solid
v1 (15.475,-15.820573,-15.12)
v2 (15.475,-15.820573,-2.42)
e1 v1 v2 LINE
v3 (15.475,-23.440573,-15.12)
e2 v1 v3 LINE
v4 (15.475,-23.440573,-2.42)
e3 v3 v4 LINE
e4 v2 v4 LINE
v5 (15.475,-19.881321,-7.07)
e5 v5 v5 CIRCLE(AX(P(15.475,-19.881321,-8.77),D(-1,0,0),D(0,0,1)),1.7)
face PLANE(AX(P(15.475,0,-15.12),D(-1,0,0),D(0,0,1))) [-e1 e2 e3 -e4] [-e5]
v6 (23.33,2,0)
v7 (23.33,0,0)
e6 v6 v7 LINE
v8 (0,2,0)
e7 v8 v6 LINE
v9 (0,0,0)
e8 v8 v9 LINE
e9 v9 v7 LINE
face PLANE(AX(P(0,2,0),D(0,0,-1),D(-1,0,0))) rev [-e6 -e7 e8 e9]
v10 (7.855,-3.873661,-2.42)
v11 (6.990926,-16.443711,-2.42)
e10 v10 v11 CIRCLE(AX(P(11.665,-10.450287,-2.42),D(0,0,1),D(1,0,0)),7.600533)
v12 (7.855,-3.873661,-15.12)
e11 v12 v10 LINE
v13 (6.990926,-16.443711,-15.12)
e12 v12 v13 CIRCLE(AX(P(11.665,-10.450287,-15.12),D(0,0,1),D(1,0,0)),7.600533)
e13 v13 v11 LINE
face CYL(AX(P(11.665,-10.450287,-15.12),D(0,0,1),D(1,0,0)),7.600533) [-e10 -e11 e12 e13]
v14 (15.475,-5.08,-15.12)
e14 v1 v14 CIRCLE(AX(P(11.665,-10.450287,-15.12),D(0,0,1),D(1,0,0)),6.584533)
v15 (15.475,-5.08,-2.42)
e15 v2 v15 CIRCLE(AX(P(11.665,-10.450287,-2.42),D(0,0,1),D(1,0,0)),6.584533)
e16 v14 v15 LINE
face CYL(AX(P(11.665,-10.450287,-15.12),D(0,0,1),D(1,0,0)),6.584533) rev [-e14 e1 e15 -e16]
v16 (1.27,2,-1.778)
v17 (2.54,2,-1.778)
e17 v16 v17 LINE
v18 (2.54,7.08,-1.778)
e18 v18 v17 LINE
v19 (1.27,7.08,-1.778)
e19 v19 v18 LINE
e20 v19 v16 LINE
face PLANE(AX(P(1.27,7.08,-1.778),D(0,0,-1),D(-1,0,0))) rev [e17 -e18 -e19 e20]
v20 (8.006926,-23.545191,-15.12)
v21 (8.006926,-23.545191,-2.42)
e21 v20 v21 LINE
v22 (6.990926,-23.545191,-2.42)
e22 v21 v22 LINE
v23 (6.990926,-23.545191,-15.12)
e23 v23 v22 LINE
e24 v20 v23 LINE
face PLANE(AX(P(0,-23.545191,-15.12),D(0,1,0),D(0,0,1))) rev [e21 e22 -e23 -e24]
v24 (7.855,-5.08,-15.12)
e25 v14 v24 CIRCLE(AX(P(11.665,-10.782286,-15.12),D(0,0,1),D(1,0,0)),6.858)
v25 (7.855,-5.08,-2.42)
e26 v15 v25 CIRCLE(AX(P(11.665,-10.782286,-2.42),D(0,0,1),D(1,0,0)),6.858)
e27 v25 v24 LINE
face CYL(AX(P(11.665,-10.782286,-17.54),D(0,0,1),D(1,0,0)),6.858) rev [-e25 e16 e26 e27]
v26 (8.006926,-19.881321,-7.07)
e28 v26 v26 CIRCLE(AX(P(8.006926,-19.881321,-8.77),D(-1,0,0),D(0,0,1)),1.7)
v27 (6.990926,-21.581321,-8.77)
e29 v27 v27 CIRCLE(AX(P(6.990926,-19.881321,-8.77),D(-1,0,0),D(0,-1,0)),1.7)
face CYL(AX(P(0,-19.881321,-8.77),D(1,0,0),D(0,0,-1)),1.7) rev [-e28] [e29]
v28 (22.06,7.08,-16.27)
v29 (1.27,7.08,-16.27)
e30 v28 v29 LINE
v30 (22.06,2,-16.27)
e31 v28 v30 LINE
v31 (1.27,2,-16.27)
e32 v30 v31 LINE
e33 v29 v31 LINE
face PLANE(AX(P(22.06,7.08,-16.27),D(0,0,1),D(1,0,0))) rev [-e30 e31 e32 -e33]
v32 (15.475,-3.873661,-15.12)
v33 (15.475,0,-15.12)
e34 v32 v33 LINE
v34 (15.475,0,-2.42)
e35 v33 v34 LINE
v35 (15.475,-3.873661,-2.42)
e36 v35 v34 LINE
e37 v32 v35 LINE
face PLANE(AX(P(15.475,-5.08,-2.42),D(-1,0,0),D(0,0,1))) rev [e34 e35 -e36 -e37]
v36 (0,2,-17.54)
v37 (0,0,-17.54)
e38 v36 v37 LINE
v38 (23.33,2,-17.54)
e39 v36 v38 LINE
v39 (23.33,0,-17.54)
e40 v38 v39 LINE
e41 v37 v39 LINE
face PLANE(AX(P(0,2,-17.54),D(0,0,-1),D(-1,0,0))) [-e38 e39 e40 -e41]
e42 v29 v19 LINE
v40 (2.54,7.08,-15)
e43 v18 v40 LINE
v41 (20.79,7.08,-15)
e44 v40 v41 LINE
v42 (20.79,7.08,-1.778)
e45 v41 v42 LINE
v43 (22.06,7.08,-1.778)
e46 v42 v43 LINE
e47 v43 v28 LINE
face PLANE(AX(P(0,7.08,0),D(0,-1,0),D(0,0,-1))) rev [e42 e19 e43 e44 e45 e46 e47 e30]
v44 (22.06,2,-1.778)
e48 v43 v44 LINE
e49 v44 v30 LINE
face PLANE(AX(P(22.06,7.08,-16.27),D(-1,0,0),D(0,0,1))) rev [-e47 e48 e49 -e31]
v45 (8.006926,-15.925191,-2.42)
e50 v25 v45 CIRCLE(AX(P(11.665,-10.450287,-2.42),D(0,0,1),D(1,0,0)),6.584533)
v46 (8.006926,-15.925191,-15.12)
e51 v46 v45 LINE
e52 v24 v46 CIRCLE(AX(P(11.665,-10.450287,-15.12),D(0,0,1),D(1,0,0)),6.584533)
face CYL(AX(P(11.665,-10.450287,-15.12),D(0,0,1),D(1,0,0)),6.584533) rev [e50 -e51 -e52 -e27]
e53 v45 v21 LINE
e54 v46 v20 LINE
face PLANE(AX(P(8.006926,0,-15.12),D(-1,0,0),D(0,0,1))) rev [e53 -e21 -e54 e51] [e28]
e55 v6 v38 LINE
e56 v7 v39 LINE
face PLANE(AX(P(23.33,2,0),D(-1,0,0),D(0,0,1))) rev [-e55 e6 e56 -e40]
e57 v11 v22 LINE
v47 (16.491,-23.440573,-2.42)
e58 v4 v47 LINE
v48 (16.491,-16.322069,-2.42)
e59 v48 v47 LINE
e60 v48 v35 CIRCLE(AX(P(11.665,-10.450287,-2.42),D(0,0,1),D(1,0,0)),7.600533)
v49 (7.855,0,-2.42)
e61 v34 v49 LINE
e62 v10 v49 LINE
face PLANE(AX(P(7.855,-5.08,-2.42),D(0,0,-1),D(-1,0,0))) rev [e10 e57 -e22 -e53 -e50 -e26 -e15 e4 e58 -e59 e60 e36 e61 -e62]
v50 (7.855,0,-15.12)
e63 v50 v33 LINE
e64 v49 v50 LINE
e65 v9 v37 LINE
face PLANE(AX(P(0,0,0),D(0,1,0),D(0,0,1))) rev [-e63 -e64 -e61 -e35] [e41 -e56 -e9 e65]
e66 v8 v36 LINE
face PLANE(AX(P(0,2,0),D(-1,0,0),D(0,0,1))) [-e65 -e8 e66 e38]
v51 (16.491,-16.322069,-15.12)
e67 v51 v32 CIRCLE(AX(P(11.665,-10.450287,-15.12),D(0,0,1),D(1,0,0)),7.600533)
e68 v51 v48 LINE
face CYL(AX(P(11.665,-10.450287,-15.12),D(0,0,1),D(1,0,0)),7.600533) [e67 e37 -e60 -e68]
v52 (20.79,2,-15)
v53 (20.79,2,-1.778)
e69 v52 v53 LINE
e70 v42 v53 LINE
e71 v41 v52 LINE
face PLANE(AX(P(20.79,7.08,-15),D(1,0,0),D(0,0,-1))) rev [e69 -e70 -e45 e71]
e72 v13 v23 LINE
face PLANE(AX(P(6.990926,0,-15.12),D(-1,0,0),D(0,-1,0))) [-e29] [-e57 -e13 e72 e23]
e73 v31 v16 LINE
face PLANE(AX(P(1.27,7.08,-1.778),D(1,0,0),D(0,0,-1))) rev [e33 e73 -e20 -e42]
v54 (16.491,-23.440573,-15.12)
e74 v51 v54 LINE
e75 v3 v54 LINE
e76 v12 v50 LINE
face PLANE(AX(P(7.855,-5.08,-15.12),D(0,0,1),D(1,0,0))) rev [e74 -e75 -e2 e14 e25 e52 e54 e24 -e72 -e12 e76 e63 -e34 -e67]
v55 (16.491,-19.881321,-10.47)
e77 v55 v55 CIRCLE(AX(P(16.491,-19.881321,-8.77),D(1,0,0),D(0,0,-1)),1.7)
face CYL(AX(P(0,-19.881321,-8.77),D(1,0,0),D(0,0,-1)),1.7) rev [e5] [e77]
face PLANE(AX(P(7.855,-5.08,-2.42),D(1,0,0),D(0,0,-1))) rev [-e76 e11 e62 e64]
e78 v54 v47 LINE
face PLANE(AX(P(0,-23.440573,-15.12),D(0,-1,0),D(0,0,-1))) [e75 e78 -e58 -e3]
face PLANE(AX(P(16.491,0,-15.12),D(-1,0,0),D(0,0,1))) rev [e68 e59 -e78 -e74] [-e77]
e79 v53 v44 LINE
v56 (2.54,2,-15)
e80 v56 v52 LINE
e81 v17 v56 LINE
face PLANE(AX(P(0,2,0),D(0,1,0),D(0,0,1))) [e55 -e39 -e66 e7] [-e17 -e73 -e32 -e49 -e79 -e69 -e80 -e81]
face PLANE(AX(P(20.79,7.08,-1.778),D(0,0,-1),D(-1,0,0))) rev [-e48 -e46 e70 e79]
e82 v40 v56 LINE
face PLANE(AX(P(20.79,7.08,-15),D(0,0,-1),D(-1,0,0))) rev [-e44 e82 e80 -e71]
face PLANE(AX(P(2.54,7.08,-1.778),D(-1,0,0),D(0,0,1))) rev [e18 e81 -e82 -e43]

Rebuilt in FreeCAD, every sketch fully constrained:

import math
import FreeCAD as App
import Part
import Sketcher
from FreeCAD import Vector
Q = App.Units.Quantity

doc = App.newDocument("Part")
body = doc.addObject("PartDesign::Body", "Body")

# Sketch on XZ plane
sketch1 = doc.addObject("Sketcher::SketchObject", "Sketch")
body.addObject(sketch1)
sketch1.AttachmentSupport = (doc.XZ_Plane, [""])
sketch1.MapMode = "FlatFace"
sketch1.addGeometry([
    Part.LineSegment(Vector(0, -17.54, 0), Vector(0, 0, 0)),
    Part.LineSegment(Vector(0, 0, 0), Vector(23.33, 0, 0)),
    Part.LineSegment(Vector(23.33, 0, 0), Vector(23.33, -17.54, 0)),
    Part.LineSegment(Vector(23.33, -17.54, 0), Vector(0, -17.54, 0)),
], False)
sketch1.addConstraint([
    Sketcher.Constraint("Coincident", 0, 2, 1, 1),
    Sketcher.Constraint("Coincident", 1, 2, 2, 1),
    Sketcher.Constraint("Coincident", 2, 2, 3, 1),
    Sketcher.Constraint("Coincident", 3, 2, 0, 1),
    Sketcher.Constraint("Vertical", 0),
    Sketcher.Constraint("Horizontal", 1),
    Sketcher.Constraint("Vertical", 2),
    Sketcher.Constraint("Horizontal", 3),
    Sketcher.Constraint("Coincident", 0, 2, -1, 1),
    Sketcher.Constraint("DistanceX", 1, 1, 1, 2, 23.33),
    Sketcher.Constraint("DistanceY", 0, 1, 0, 2, 17.54),
])
pad1 = doc.addObject("PartDesign::Pad", "Pad")
body.addObject(pad1)
pad1.Profile = sketch1
pad1.Length = 2
pad1.Reversed = True

# Sketch on XZ plane
sketch2 = doc.addObject("Sketcher::SketchObject", "Sketch001")
body.addObject(sketch2)
sketch2.AttachmentSupport = (doc.XZ_Plane, [""])
sketch2.MapMode = "FlatFace"
sketch2.AttachmentOffset = App.Placement(Vector(0, 0, -2), App.Rotation())
sketch2.addGeometry([
    Part.LineSegment(Vector(1.27, -16.27, 0), Vector(1.27, -1.778, 0)),  # 0
    Part.LineSegment(Vector(1.27, -1.778, 0), Vector(2.54, -1.778, 0)),  # 1
    Part.LineSegment(Vector(2.54, -1.778, 0), Vector(2.54, -15, 0)),  # 2
    Part.LineSegment(Vector(2.54, -15, 0), Vector(20.79, -15, 0)),  # 3
    Part.LineSegment(Vector(20.79, -15, 0), Vector(20.79, -1.778, 0)),  # 4
    Part.LineSegment(Vector(20.79, -1.778, 0), Vector(22.06, -1.778, 0)),  # 5
    Part.LineSegment(Vector(22.06, -1.778, 0), Vector(22.06, -16.27, 0)),  # 6
    Part.LineSegment(Vector(22.06, -16.27, 0), Vector(1.27, -16.27, 0)),  # 7
], False)
sketch2.addConstraint([
    Sketcher.Constraint("Coincident", 0, 2, 1, 1),
    Sketcher.Constraint("Coincident", 1, 2, 2, 1),
    Sketcher.Constraint("Coincident", 2, 2, 3, 1),
    Sketcher.Constraint("Coincident", 3, 2, 4, 1),
    Sketcher.Constraint("Coincident", 4, 2, 5, 1),
    Sketcher.Constraint("Coincident", 5, 2, 6, 1),
    Sketcher.Constraint("Coincident", 6, 2, 7, 1),
    Sketcher.Constraint("Coincident", 7, 2, 0, 1),
    Sketcher.Constraint("Vertical", 0),
    Sketcher.Constraint("Horizontal", 1),
    Sketcher.Constraint("Vertical", 2),
    Sketcher.Constraint("Horizontal", 3),
    Sketcher.Constraint("Vertical", 4),
    Sketcher.Constraint("Horizontal", 5),
    Sketcher.Constraint("Vertical", 6),
    Sketcher.Constraint("Horizontal", 7),
    Sketcher.Constraint("Horizontal", 1, 2, 4, 2),
    Sketcher.Constraint("Equal", 1, 5),
    Sketcher.Constraint("DistanceX", 1, 1, 1, 2, Q("0.05 in")),
    Sketcher.Constraint("DistanceX", -1, 1, 1, 2, Q("0.1 in")),
    Sketcher.Constraint("DistanceY", 0, 2, -1, 1, Q("0.07 in")),
    Sketcher.Constraint("DistanceY", 6, 2, 3, 2, Q("0.05 in")),
    Sketcher.Constraint("DistanceX", 3, 1, 3, 2, 18.25),
    Sketcher.Constraint("DistanceY", 0, 1, 0, 2, 14.492),
])
pad2 = doc.addObject("PartDesign::Pad", "Pad001")
body.addObject(pad2)
pad2.Profile = sketch2
pad2.Length = Q("0.2 in")
pad2.Reversed = True

# Sketch on XZ plane
sketch3 = doc.addObject("Sketcher::SketchObject", "Sketch002")
body.addObject(sketch3)
sketch3.AttachmentSupport = (doc.XZ_Plane, [""])
sketch3.MapMode = "FlatFace"
sketch3.addGeometry([
    Part.LineSegment(Vector(7.855, -2.42, 0), Vector(7.855, -15.12, 0)),
    Part.LineSegment(Vector(7.855, -15.12, 0), Vector(15.475, -15.12, 0)),
    Part.LineSegment(Vector(15.475, -15.12, 0), Vector(15.475, -2.42, 0)),
    Part.LineSegment(Vector(15.475, -2.42, 0), Vector(7.855, -2.42, 0)),
], False)
sketch3.addConstraint([
    Sketcher.Constraint("Coincident", 0, 2, 1, 1),
    Sketcher.Constraint("Coincident", 1, 2, 2, 1),
    Sketcher.Constraint("Coincident", 2, 2, 3, 1),
    Sketcher.Constraint("Coincident", 3, 2, 0, 1),
    Sketcher.Constraint("Vertical", 0),
    Sketcher.Constraint("Horizontal", 1),
    Sketcher.Constraint("Vertical", 2),
    Sketcher.Constraint("Horizontal", 3),
    Sketcher.Constraint("DistanceX", 1, 1, 1, 2, Q("0.3 in")),
    Sketcher.Constraint("DistanceY", 0, 2, 0, 1, Q("0.5 in")),
    Sketcher.Constraint("DistanceX", -1, 1, 0, 2, 7.855),
    Sketcher.Constraint("DistanceY", 0, 2, -1, 1, 15.12),
])
pad3 = doc.addObject("PartDesign::Pad", "Pad002")
body.addObject(pad3)
pad3.Profile = sketch3
pad3.Length = Q("0.2 in")

# Sketch on XY plane
sketch4 = doc.addObject("Sketcher::SketchObject", "Sketch003")
body.addObject(sketch4)
sketch4.AttachmentSupport = (doc.XY_Plane, [""])
sketch4.MapMode = "FlatFace"
sketch4.AttachmentOffset = App.Placement(Vector(0, 0, -2.42), App.Rotation())
sketch4.addGeometry(Part.Circle(Vector(11.665, -10.782286, 0), Vector(0, 0, 1), 6.858), False)
sketch4.addConstraint([
    Sketcher.Constraint("Diameter", 0, Q("0.54 in")),
    Sketcher.Constraint("DistanceX", -1, 1, 0, 3, 11.665),
    Sketcher.Constraint("DistanceY", 0, 3, -1, 1, 10.782286),
])
pocket1 = doc.addObject("PartDesign::Pocket", "Pocket")
body.addObject(pocket1)
pocket1.Profile = sketch4
pocket1.Type = "ThroughAll"

# Sketch on XY plane
sketch5 = doc.addObject("Sketcher::SketchObject", "Sketch004")
body.addObject(sketch5)
sketch5.AttachmentSupport = (doc.XY_Plane, [""])
sketch5.MapMode = "FlatFace"
sketch5.AttachmentOffset = App.Placement(Vector(0, 0, -2.42), App.Rotation())
sketch5.addGeometry([
    Part.ArcOfCircle(Part.Circle(Vector(11.665, -10.450287, 0), Vector(0, 0, 1), 6.584533), math.radians(-54.645849), math.radians(54.645849)),  # 0
    Part.LineSegment(Vector(15.475, -15.820573, 0), Vector(15.475, -23.440573, 0)),  # 1
    Part.LineSegment(Vector(15.475, -23.440573, 0), Vector(16.491, -23.440573, 0)),  # 2
    Part.LineSegment(Vector(16.491, -23.440573, 0), Vector(16.491, -16.322069, 0)),  # 3
    Part.ArcOfCircle(Part.Circle(Vector(11.665, -10.450287, 0), Vector(0, 0, 1), 7.600533), math.radians(-50.58332), math.radians(59.915239)),  # 4
    Part.LineSegment(Vector(15.475, -3.873661, 0), Vector(15.475, -5.08, 0)),  # 5
    Part.ArcOfCircle(Part.Circle(Vector(11.665, -10.450287, 0), Vector(0, 0, 1), 6.584533), math.radians(125.354151), math.radians(236.251011)),  # 6
    Part.LineSegment(Vector(7.855, -5.08, 0), Vector(7.855, -3.873661, 0)),  # 7
    Part.ArcOfCircle(Part.Circle(Vector(11.665, -10.450287, 0), Vector(0, 0, 1), 7.600533), math.radians(120.084761), math.radians(232.050507)),  # 8
    Part.LineSegment(Vector(6.990926, -16.443711, 0), Vector(6.990926, -23.545191, 0)),  # 9
    Part.LineSegment(Vector(6.990926, -23.545191, 0), Vector(8.006926, -23.545191, 0)),  # 10
    Part.LineSegment(Vector(8.006926, -23.545191, 0), Vector(8.006926, -15.925191, 0)),  # 11
], False)
sketch5.addConstraint([
    Sketcher.Constraint("Coincident", 0, 1, 1, 1),
    Sketcher.Constraint("Coincident", 1, 2, 2, 1),
    Sketcher.Constraint("Coincident", 2, 2, 3, 1),
    Sketcher.Constraint("Coincident", 3, 2, 4, 1),
    Sketcher.Constraint("Coincident", 4, 2, 5, 1),
    Sketcher.Constraint("Coincident", 5, 2, 0, 2),
    Sketcher.Constraint("Coincident", 6, 1, 7, 1),
    Sketcher.Constraint("Coincident", 7, 2, 8, 1),
    Sketcher.Constraint("Coincident", 8, 2, 9, 1),
    Sketcher.Constraint("Coincident", 9, 2, 10, 1),
    Sketcher.Constraint("Coincident", 10, 2, 11, 1),
    Sketcher.Constraint("Coincident", 11, 2, 6, 2),
    Sketcher.Constraint("Vertical", 1),
    Sketcher.Constraint("Horizontal", 2),
    Sketcher.Constraint("Vertical", 3),
    Sketcher.Constraint("Vertical", 5),
    Sketcher.Constraint("Vertical", 7),
    Sketcher.Constraint("Vertical", 9),
    Sketcher.Constraint("Horizontal", 10),
    Sketcher.Constraint("Vertical", 11),
    Sketcher.Constraint("Coincident", 4, 3, 0, 3),
    Sketcher.Constraint("Coincident", 6, 3, 0, 3),
    Sketcher.Constraint("Coincident", 8, 3, 0, 3),
    Sketcher.Constraint("Equal", 0, 6),
    Sketcher.Constraint("Equal", 4, 8),
    Sketcher.Constraint("Horizontal", 5, 2, 6, 1),
    Sketcher.Constraint("Vertical", 1, 2, 4, 2),
    Sketcher.Constraint("Equal", 2, 10),
    Sketcher.Constraint("Equal", 1, 11),
    Sketcher.Constraint("DistanceY", 1, 2, 1, 1, Q("0.3 in")),
    Sketcher.Constraint("DistanceX", 2, 1, 2, 2, Q("0.04 in")),
    Sketcher.Constraint("DistanceY", 5, 2, -1, 1, Q("0.2 in")),
    Sketcher.Constraint("DistanceX", 6, 1, 5, 2, Q("0.3 in")),
    Sketcher.Constraint("Radius", 0, 6.584533),
    Sketcher.Constraint("Radius", 4, 7.600533),
    Sketcher.Constraint("DistanceY", 9, 2, 9, 1, 7.101479),
    Sketcher.Constraint("DistanceX", -1, 1, 0, 3, 11.665),
])
pad4 = doc.addObject("PartDesign::Pad", "Pad003")
body.addObject(pad4)
pad4.Profile = sketch5
pad4.Length = Q("0.5 in")
pad4.Reversed = True

# Sketch on YZ plane
sketch6 = doc.addObject("Sketcher::SketchObject", "Sketch005")
body.addObject(sketch6)
sketch6.AttachmentSupport = (doc.YZ_Plane, [""])
sketch6.MapMode = "FlatFace"
sketch6.AttachmentOffset = App.Placement(Vector(0, 0, 16.491), App.Rotation())
sketch6.addGeometry(Part.Circle(Vector(-19.881321, -8.77, 0), Vector(0, 0, 1), 1.7), False)
sketch6.addConstraint([
    Sketcher.Constraint("Diameter", 0, 3.4),
    Sketcher.Constraint("DistanceY", 0, 3, -1, 1, 8.77),
    Sketcher.Constraint("DistanceX", 0, 3, -1, 1, 19.881321),
])
pocket2 = doc.addObject("PartDesign::Pocket", "Pocket001")
body.addObject(pocket2)
pocket2.Profile = sketch6
pocket2.Type = "ThroughAll"

doc.recompute()
